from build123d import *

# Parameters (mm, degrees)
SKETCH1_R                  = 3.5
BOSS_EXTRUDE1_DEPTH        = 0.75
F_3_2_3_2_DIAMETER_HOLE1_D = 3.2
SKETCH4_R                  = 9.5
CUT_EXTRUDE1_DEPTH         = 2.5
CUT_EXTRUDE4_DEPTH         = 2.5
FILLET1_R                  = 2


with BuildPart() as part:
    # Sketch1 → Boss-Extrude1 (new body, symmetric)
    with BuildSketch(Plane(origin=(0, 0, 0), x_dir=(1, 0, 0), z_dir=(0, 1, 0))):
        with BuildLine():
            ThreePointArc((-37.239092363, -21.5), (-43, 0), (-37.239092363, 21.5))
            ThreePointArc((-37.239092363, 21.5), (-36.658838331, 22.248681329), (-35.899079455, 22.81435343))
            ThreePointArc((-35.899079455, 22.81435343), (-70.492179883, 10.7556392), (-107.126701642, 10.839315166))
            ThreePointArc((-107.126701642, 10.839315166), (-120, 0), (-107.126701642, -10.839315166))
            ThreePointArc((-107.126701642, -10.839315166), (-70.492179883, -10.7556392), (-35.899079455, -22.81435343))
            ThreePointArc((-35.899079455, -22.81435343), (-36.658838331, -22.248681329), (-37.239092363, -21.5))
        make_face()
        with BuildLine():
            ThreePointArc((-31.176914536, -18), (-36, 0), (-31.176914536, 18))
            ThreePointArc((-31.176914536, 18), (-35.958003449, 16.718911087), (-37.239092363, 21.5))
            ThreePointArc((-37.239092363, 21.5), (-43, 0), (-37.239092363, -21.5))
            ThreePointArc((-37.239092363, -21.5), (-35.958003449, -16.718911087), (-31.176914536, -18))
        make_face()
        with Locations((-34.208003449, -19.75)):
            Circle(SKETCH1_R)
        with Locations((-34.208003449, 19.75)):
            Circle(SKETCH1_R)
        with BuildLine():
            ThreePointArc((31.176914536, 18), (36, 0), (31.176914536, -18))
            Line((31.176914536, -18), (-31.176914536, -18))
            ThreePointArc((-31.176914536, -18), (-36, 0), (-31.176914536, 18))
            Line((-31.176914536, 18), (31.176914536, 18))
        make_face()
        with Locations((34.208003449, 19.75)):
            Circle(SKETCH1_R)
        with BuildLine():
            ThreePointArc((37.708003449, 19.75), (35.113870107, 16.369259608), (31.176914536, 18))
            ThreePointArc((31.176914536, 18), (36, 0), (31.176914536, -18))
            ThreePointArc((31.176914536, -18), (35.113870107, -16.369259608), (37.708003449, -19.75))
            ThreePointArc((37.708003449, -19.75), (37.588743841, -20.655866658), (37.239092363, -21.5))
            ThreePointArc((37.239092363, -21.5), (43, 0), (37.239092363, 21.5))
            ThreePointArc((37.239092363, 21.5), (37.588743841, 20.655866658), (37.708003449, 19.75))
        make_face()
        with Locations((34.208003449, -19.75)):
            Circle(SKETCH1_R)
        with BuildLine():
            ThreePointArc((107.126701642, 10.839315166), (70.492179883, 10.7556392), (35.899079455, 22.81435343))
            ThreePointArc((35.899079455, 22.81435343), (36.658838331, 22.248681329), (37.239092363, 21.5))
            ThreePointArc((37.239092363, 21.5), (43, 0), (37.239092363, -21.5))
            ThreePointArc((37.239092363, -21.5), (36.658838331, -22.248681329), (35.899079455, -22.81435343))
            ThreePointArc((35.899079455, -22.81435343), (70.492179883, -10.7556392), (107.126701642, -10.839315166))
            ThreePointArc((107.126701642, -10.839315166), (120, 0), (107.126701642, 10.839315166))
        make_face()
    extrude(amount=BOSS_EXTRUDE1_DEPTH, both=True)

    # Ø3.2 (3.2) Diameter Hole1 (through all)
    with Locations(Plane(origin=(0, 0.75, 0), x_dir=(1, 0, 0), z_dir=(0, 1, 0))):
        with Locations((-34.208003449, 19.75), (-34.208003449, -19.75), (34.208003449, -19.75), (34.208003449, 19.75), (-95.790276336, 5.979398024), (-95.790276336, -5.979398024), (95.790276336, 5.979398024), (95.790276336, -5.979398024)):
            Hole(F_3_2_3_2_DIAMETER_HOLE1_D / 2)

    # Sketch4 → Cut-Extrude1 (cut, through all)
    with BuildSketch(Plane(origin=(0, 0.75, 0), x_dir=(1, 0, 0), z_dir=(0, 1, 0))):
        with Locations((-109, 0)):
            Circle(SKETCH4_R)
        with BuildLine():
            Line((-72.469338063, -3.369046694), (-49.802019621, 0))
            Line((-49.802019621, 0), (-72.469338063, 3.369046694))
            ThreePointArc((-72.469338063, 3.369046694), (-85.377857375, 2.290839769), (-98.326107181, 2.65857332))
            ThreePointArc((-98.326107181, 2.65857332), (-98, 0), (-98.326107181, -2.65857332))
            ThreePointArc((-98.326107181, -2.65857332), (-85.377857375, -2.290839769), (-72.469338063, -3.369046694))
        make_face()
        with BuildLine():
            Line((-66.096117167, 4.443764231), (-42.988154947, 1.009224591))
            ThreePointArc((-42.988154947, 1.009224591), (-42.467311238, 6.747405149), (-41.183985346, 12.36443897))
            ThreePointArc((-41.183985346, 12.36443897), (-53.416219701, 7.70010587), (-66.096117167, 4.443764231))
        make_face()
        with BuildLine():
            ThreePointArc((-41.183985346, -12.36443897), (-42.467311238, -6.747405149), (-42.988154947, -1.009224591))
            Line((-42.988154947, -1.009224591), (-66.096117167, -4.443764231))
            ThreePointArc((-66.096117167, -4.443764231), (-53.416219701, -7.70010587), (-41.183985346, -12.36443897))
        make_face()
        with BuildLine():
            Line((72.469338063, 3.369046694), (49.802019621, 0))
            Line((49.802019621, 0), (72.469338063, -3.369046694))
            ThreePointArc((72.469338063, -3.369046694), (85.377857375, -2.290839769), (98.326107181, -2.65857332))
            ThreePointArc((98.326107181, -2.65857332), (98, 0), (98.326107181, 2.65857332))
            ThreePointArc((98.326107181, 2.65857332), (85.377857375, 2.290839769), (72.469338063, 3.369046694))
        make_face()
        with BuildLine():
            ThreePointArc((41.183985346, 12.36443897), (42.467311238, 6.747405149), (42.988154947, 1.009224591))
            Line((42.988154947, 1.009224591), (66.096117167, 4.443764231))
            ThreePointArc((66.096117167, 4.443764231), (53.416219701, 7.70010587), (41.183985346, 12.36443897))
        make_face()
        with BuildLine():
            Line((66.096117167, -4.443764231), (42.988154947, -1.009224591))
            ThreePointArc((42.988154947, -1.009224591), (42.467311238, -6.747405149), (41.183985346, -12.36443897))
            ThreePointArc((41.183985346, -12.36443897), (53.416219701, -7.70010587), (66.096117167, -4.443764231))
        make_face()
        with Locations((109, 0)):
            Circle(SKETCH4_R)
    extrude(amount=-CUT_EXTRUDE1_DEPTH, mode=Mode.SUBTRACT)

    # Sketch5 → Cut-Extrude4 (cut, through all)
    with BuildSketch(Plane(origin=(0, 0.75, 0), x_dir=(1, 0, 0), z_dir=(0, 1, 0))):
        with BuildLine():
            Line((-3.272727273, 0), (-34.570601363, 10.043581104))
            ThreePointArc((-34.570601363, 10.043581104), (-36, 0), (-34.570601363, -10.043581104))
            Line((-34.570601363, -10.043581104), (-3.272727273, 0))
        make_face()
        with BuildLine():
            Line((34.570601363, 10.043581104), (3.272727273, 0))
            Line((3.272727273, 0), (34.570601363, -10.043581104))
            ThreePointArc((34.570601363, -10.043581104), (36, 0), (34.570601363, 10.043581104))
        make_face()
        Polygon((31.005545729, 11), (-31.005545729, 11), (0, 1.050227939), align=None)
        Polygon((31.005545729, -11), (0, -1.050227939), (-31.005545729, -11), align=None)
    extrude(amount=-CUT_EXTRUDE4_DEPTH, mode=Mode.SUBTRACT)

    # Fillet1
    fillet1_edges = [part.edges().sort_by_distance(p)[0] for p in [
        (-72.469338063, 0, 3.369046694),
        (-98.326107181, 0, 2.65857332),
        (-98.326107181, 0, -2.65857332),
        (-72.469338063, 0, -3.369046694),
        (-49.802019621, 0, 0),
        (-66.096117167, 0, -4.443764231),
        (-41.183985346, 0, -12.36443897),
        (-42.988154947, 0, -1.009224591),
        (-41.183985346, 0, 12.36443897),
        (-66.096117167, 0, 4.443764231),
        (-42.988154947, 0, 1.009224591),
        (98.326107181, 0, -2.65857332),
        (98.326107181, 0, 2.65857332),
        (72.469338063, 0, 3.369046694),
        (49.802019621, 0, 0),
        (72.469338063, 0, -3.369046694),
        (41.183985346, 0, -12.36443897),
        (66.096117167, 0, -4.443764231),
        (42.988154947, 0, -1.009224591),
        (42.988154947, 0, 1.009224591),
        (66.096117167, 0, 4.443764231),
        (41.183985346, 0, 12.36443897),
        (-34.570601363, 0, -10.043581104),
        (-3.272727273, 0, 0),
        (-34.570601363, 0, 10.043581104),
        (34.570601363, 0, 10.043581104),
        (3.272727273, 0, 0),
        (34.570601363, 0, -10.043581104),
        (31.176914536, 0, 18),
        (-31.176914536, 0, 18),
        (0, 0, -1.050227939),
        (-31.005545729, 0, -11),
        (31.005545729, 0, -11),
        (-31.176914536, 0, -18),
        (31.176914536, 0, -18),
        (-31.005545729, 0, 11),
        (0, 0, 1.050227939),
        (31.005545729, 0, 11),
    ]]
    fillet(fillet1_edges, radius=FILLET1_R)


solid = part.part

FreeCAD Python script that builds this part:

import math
import FreeCAD as App
import Part
import Sketcher

V = App.Vector
Q = App.Units.Quantity


def edges_at(feature, points):
    """Names of the edges that pass closest to the given points."""
    edges = feature.Shape.Edges
    near = lambda p: min(range(len(edges)), key=lambda i: edges[i].distToShape(Part.Vertex(*p))[0])
    return sorted({f"Edge{near(p) + 1}" for p in points})

doc = App.newDocument("Part")
params = doc.addObject("Spreadsheet::Sheet", "Params")
for row, (alias, value) in enumerate([
    ("sketch1_radius", "109 mm"),
    ("sketch1_radius2", "11 mm"),
    ("sketch1_radius3", "3.5 mm"),
    ("pad1_length", "1.5 mm"),
    ("sketch2_diameter", "3.2 mm"),
    ("hole_diameter", "3.2 mm"),
    ("sketch3_diameter", "19 mm"),
    ("sketch3_radius", "116 mm"),
    ("sketch3_radius2", "11 mm"),
    ("sketch3_radius3", "43 mm"),
    ("sketch4_radius", "36 mm"),
    ("fillet_radius", "2 mm"),
], start=1):
    params.set(f"A{row}", alias)
    params.set(f"B{row}", "=" + value)
    params.setAlias(f"B{row}", alias)

body = doc.addObject("PartDesign::Body", "Body")

# Sketch on XZ plane
sketch1 = body.newObject("Sketcher::SketchObject", "Sketch")
sketch1.AttachmentSupport = (doc.getObject("XZ_Plane"), [""])
sketch1.MapMode = "FlatFace"
sketch1.addGeometry(Part.ArcOfCircle(Part.Circle(V(-88.6, -118.2, 0), V(0, 0, 1), 109), math.radians(61), math.radians(100)), False)
sketch1.addGeometry(Part.ArcOfCircle(Part.Circle(V(-109, 0, 0), V(0, 0, 1), 11), math.radians(80), math.radians(280)), False)
sketch1.addGeometry(Part.ArcOfCircle(Part.Circle(V(-88.6, 118.2, 0), V(0, 0, 1), 109), math.radians(-100), math.radians(-61)), False)
sketch1.addGeometry(Part.ArcOfCircle(Part.Circle(V(-34.2, 19.8, 0), V(0, 0, 1), 3.5), math.radians(-30), math.radians(119)), False)
sketch1.addGeometry(Part.LineSegment(V(-31.2, 18, 0), V(31.2, 18, 0)), False)
sketch1.addGeometry(Part.ArcOfCircle(Part.Circle(V(34.2, 19.8, 0), V(0, 0, 1), 3.5), math.radians(61), math.radians(210)), False)
sketch1.addGeometry(Part.ArcOfCircle(Part.Circle(V(88.6, 118.2, 0), V(0, 0, 1), 109), math.radians(-119), math.radians(-80)), False)
sketch1.addGeometry(Part.ArcOfCircle(Part.Circle(V(109, 0, 0), V(0, 0, 1), 11), math.radians(-100), math.radians(100)), False)
sketch1.addGeometry(Part.ArcOfCircle(Part.Circle(V(88.6, -118.2, 0), V(0, 0, 1), 109), math.radians(80), math.radians(119)), False)
sketch1.addGeometry(Part.ArcOfCircle(Part.Circle(V(34.2, -19.8, 0), V(0, 0, 1), 3.5), math.radians(150), math.radians(299)), False)
sketch1.addGeometry(Part.LineSegment(V(31.2, -18, 0), V(-31.2, -18, 0)), False)
sketch1.addGeometry(Part.ArcOfCircle(Part.Circle(V(-34.2, -19.8, 0), V(0, 0, 1), 3.5), math.radians(-119), math.radians(30)), False)
sketch1.addConstraint(Sketcher.Constraint("Tangent", 0, 2, 1, 2))
sketch1.addConstraint(Sketcher.Constraint("Tangent", 1, 1, 2, 1))
sketch1.addConstraint(Sketcher.Constraint("Tangent", 2, 2, 3, 2))
sketch1.addConstraint(Sketcher.Constraint("Coincident", 3, 1, 4, 1))
sketch1.addConstraint(Sketcher.Constraint("Coincident", 4, 2, 5, 2))
sketch1.addConstraint(Sketcher.Constraint("Tangent", 5, 1, 6, 1))
sketch1.addConstraint(Sketcher.Constraint("Tangent", 6, 2, 7, 2))
sketch1.addConstraint(Sketcher.Constraint("Tangent", 7, 1, 8, 1))
sketch1.addConstraint(Sketcher.Constraint("Tangent", 8, 2, 9, 2))
sketch1.addConstraint(Sketcher.Constraint("Coincident", 9, 1, 10, 1))
sketch1.addConstraint(Sketcher.Constraint("Coincident", 10, 2, 11, 2))
sketch1.addConstraint(Sketcher.Constraint("Tangent", 11, 1, 0, 1))
sketch1.addConstraint(Sketcher.Constraint("Horizontal", 4))
sketch1.addConstraint(Sketcher.Constraint("Horizontal", 10))
sketch1.addConstraint(Sketcher.Constraint("Equal", 0, 2))
sketch1.addConstraint(Sketcher.Constraint("Equal", 3, 5))
sketch1.addConstraint(Sketcher.Constraint("Equal", 2, 6))
sketch1.addConstraint(Sketcher.Constraint("Equal", 1, 7))
sketch1.addConstraint(Sketcher.Constraint("Equal", 6, 8))
sketch1.addConstraint(Sketcher.Constraint("Equal", 5, 9))
sketch1.addConstraint(Sketcher.Constraint("Equal", 9, 11))
sketch1.addConstraint(Sketcher.Constraint("Symmetric", 0, 3, 6, 3, -1, 1))
sketch1.addConstraint(Sketcher.Constraint("Symmetric", 2, 3, 8, 3, -1, 1))
sketch1.addConstraint(Sketcher.Constraint("Symmetric", 3, 1, 9, 1, -1, 1))
sketch1.addConstraint(Sketcher.Constraint("Symmetric", 3, 3, 5, 3, -2))
sketch1.addConstraint(Sketcher.Constraint("PointOnObject", 1, 3, -1))
sketch1.addConstraint(Sketcher.Constraint("Horizontal", 9, 3, 11, 3))
sketch1.addConstraint(Sketcher.Constraint("Radius", 0, Q("109 mm")))
sketch1.addConstraint(Sketcher.Constraint("Radius", 1, Q("11 mm")))
sketch1.addConstraint(Sketcher.Constraint("Radius", 3, Q("3.5 mm")))
sketch1.addConstraint(Sketcher.Constraint("DistanceX", 1, 3, -1, 1, Q("109 mm")))
sketch1.addConstraint(Sketcher.Constraint("DistanceY", -1, 1, 3, 1, Q("18 mm")))
sketch1.addConstraint(Sketcher.Constraint("DistanceY", 9, 3, 5, 3, Q("39.5 mm")))
sketch1.addConstraint(Sketcher.Constraint("DistanceX", 4, 1, 4, 2, Q("62.353829 mm")))
sketch1.setExpression("Constraints[27]", "Params.sketch1_radius")
sketch1.setExpression("Constraints[28]", "Params.sketch1_radius2")
sketch1.setExpression("Constraints[29]", "Params.sketch1_radius3")
pad1 = body.newObject("PartDesign::Pad", "Pad")
pad1.Profile = sketch1
pad1.setExpression("Length", "Params.pad1_length")
pad1.Midplane = True

# Sketch on XZ plane
sketch2 = body.newObject("Sketcher::SketchObject", "Sketch001")
sketch2.AttachmentSupport = (doc.getObject("XZ_Plane"), [""])
sketch2.MapMode = "FlatFace"
sketch2.AttachmentOffset = App.Placement(V(0, 0, -0.75), App.Rotation())
sketch2.addGeometry(Part.Circle(V(-34.2, -19.8, 0), V(0, 0, 1), 1.6), False)
sketch2.addGeometry(Part.Circle(V(-34.2, 19.8, 0), V(0, 0, 1), 1.6), False)
sketch2.addGeometry(Part.Circle(V(34.2, 19.8, 0), V(0, 0, 1), 1.6), False)
sketch2.addGeometry(Part.Circle(V(34.2, -19.8, 0), V(0, 0, 1), 1.6), False)
sketch2.addGeometry(Part.Circle(V(-95.8, -6, 0), V(0, 0, 1), 1.6), False)
sketch2.addGeometry(Part.Circle(V(-95.8, 6, 0), V(0, 0, 1), 1.6), False)
sketch2.addGeometry(Part.Circle(V(95.8, -6, 0), V(0, 0, 1), 1.6), False)
sketch2.addGeometry(Part.Circle(V(95.8, 6, 0), V(0, 0, 1), 1.6), False)
sketch2.addConstraint(Sketcher.Constraint("Equal", 0, 1))
sketch2.addConstraint(Sketcher.Constraint("Equal", 1, 2))
sketch2.addConstraint(Sketcher.Constraint("Equal", 2, 3))
sketch2.addConstraint(Sketcher.Constraint("Equal", 3, 4))
sketch2.addConstraint(Sketcher.Constraint("Equal", 4, 5))
sketch2.addConstraint(Sketcher.Constraint("Equal", 5, 6))
sketch2.addConstraint(Sketcher.Constraint("Equal", 6, 7))
sketch2.addConstraint(Sketcher.Constraint("Symmetric", 0, 3, 2, 3, -1, 1))
sketch2.addConstraint(Sketcher.Constraint("Symmetric", 1, 3, 3, 3, -1, 1))
sketch2.addConstraint(Sketcher.Constraint("Symmetric", 5, 3, 6, 3, -1, 1))
sketch2.addConstraint(Sketcher.Constraint("Symmetric", 4, 3, 7, 3, -1, 1))
sketch2.addConstraint(Sketcher.Constraint("Symmetric", 1, 3, 2, 3, -2))
sketch2.addConstraint(Sketcher.Constraint("Symmetric", 4, 3, 6, 3, -2))
sketch2.addConstraint(Sketcher.Constraint("Diameter", 0, Q("3.2 mm")))
sketch2.addConstraint(Sketcher.Constraint("DistanceY", 0, 3, 1, 3, Q("39.5 mm")))
sketch2.addConstraint(Sketcher.Constraint("DistanceY", 4, 3, -1, 1, Q("5.979398 mm")))
sketch2.addConstraint(Sketcher.Constraint("DistanceX", 4, 3, 3, 3, Q("129.99828 mm")))
sketch2.addConstraint(Sketcher.Constraint("DistanceX", 0, 3, -1, 1, Q("34.208003 mm")))
sketch2.setExpression("Constraints[13]", "Params.sketch2_diameter")
doc.recompute()
hole = body.newObject("PartDesign::Hole", "Hole")
hole.Profile = sketch2
hole.ThreadType = "None"
hole.setExpression("Diameter", "Params.hole_diameter")
hole.DepthType = "ThroughAll"
hole.Reversed = True

# Sketch on XZ plane
sketch3 = body.newObject("Sketcher::SketchObject", "Sketch002")
sketch3.AttachmentSupport = (doc.getObject("XZ_Plane"), [""])
sketch3.MapMode = "FlatFace"
sketch3.AttachmentOffset = App.Placement(V(0, 0, -0.75), App.Rotation())
sketch3.addGeometry(Part.Circle(V(-109, 0, 0), V(0, 0, 1), 10), False)
sketch3.addGeometry(Part.LineSegment(V(-72, 3, 0), V(-50, 0, 0)), False)
sketch3.addGeometry(Part.LineSegment(V(-50, 0, 0), V(-72, -3, 0)), False)
sketch3.addGeometry(Part.ArcOfCircle(Part.Circle(V(-89, -118, 0), V(0, 0, 1), 116), math.radians(82.02), math.radians(94.83)), False)
sketch3.addGeometry(Part.ArcOfCircle(Part.Circle(V(-109, 0, 0), V(0, 0, 1), 11), math.radians(-14), math.radians(14)), False)
sketch3.addGeometry(Part.ArcOfCircle(Part.Circle(V(-89, 118, 0), V(0, 0, 1), 116), math.radians(-94.83), math.radians(-82.02)), False)
sketch3.addGeometry(Part.LineSegment(V(-66, -4, 0), V(-43, -1, 0)), False)
sketch3.addGeometry(Part.ArcOfCircle(Part.Circle(V(0, 0, 0), V(0, 0, 1), 43), math.radians(-178.66), math.radians(-163.29)), False)
sketch3.addGeometry(Part.ArcOfCircle(Part.Circle(V(-89, -118, 0), V(0, 0, 1), 116), math.radians(65.89), math.radians(78.83)), False)
sketch3.addGeometry(Part.ArcOfCircle(Part.Circle(V(0, 0, 0), V(0, 0, 1), 43), math.radians(163.29), math.radians(178.66)), False)
sketch3.addGeometry(Part.LineSegment(V(-43, 1, 0), V(-66, 4, 0)), False)
sketch3.addGeometry(Part.ArcOfCircle(Part.Circle(V(-89, 118, 0), V(0, 0, 1), 116), math.radians(-78.83), math.radians(-65.89)), False)
sketch3.addGeometry(Part.LineSegment(V(72, -3, 0), V(50, 0, 0)), False)
sketch3.addGeometry(Part.LineSegment(V(50, 0, 0), V(72, 3, 0)), False)
sketch3.addGeometry(Part.ArcOfCircle(Part.Circle(V(89, 118, 0), V(0, 0, 1), 116), math.radians(-97.98), math.radians(-85.17)), False)
sketch3.addGeometry(Part.ArcOfCircle(Part.Circle(V(109, 0, 0), V(0, 0, 1), 11), math.radians(166), math.radians(194)), False)
sketch3.addGeometry(Part.ArcOfCircle(Part.Circle(V(89, -118, 0), V(0, 0, 1), 116), math.radians(85.17), math.radians(97.98)), False)
sketch3.addGeometry(Part.ArcOfCircle(Part.Circle(V(0, 0, 0), V(0, 0, 1), 43), math.radians(-16.71), math.radians(-1.34)), False)
sketch3.addGeometry(Part.LineSegment(V(43, -1, 0), V(66, -4, 0)), False)
sketch3.addGeometry(Part.ArcOfCircle(Part.Circle(V(89, -118, 0), V(0, 0, 1), 116), math.radians(101.17), math.radians(114.11)), False)
sketch3.addGeometry(Part.LineSegment(V(66, 4, 0), V(43, 1, 0)), False)
sketch3.addGeometry(Part.ArcOfCircle(Part.Circle(V(0, 0, 0), V(0, 0, 1), 43), math.radians(1.34), math.radians(16.71)), False)
sketch3.addGeometry(Part.ArcOfCircle(Part.Circle(V(89, 118, 0), V(0, 0, 1), 116), math.radians(-114.11), math.radians(-101.17)), False)
sketch3.addGeometry(Part.Circle(V(109, 0, 0), V(0, 0, 1), 10), False)
sketch3.addConstraint(Sketcher.Constraint("Coincident", 1, 2, 2, 1))
sketch3.addConstraint(Sketcher.Constraint("Coincident", 2, 2, 3, 1))
sketch3.addConstraint(Sketcher.Constraint("Coincident", 3, 2, 4, 1))
sketch3.addConstraint(Sketcher.Constraint("Coincident", 4, 2, 5, 1))
sketch3.addConstraint(Sketcher.Constraint("Coincident", 5, 2, 1, 1))
sketch3.addConstraint(Sketcher.Constraint("Coincident", 6, 2, 7, 1))
sketch3.addConstraint(Sketcher.Constraint("Coincident", 7, 2, 8, 1))
sketch3.addConstraint(Sketcher.Constraint("Coincident", 8, 2, 6, 1))
sketch3.addConstraint(Sketcher.Constraint("Coincident", 9, 2, 10, 1))
sketch3.addConstraint(Sketcher.Constraint("Coincident", 10, 2, 11, 1))
sketch3.addConstraint(Sketcher.Constraint("Coincident", 11, 2, 9, 1))
sketch3.addConstraint(Sketcher.Constraint("Coincident", 12, 2, 13, 1))
sketch3.addConstraint(Sketcher.Constraint("Coincident", 13, 2, 14, 1))
sketch3.addConstraint(Sketcher.Constraint("Coincident", 14, 2, 15, 1))
sketch3.addConstraint(Sketcher.Constraint("Coincident", 15, 2, 16, 1))
sketch3.addConstraint(Sketcher.Constraint("Coincident", 16, 2, 12, 1))
sketch3.addConstraint(Sketcher.Constraint("Coincident", 17, 2, 18, 1))
sketch3.addConstraint(Sketcher.Constraint("Coincident", 18, 2, 19, 1))
sketch3.addConstraint(Sketcher.Constraint("Coincident", 19, 2, 17, 1))
sketch3.addConstraint(Sketcher.Constraint("Coincident", 20, 2, 21, 1))
sketch3.addConstraint(Sketcher.Constraint("Coincident", 21, 2, 22, 1))
sketch3.addConstraint(Sketcher.Constraint("Coincident", 22, 2, 20, 1))
sketch3.addConstraint(Sketcher.Constraint("Coincident", 7, 3, -1, 1))
sketch3.addConstraint(Sketcher.Constraint("Coincident", 9, 3, -1, 1))
sketch3.addConstraint(Sketcher.Constraint("Coincident", 17, 3, -1, 1))
sketch3.addConstraint(Sketcher.Constraint("Coincident", 21, 3, -1, 1))
sketch3.addConstraint(Sketcher.Constraint("Coincident", 4, 3, 0, 3))
sketch3.addConstraint(Sketcher.Constraint("Coincident", 8, 3, 3, 3))
sketch3.addConstraint(Sketcher.Constraint("Coincident", 11, 3, 5, 3))
sketch3.addConstraint(Sketcher.Constraint("Coincident", 19, 3, 16, 3))
sketch3.addConstraint(Sketcher.Constraint("Coincident", 22, 3, 14, 3))
sketch3.addConstraint(Sketcher.Constraint("Coincident", 23, 3, 15, 3))
sketch3.addConstraint(Sketcher.Constraint("Equal", 3, 5))
sketch3.addConstraint(Sketcher.Constraint("Equal", 5, 8))
sketch3.addConstraint(Sketcher.Constraint("Equal", 7, 9))
sketch3.addConstraint(Sketcher.Constraint("Equal", 8, 11))
sketch3.addConstraint(Sketcher.Constraint("Equal", 11, 14))
sketch3.addConstraint(Sketcher.Constraint("Equal", 4, 15))
sketch3.addConstraint(Sketcher.Constraint("Equal", 14, 16))
sketch3.addConstraint(Sketcher.Constraint("Equal", 9, 17))
sketch3.addConstraint(Sketcher.Constraint("Equal", 16, 19))
sketch3.addConstraint(Sketcher.Constraint("Equal", 17, 21))
sketch3.addConstraint(Sketcher.Constraint("Equal", 19, 22))
sketch3.addConstraint(Sketcher.Constraint("Equal", 0, 23))
sketch3.addConstraint(Sketcher.Constraint("Symmetric", 3, 3, 14, 3, -1, 1))
sketch3.addConstraint(Sketcher.Constraint("Symmetric", 0, 3, 15, 3, -1, 1))
sketch3.addConstraint(Sketcher.Constraint("Symmetric", 5, 3, 16, 3, -1, 1))
sketch3.addConstraint(Sketcher.Constraint("Symmetric", 1, 2, 12, 2, -1, 1))
sketch3.addConstraint(Sketcher.Constraint("Symmetric", 5, 3, 14, 3, -2))
sketch3.addConstraint(Sketcher.Constraint("PointOnObject", 0, 3, -1))
sketch3.addConstraint(Sketcher.Constraint("PointOnObject", 1, 2, -1))
sketch3.addConstraint(Sketcher.Constraint("Parallel", 2, 6))
sketch3.addConstraint(Sketcher.Constraint("Parallel", 1, 10))
sketch3.addConstraint(Sketcher.Constraint("Parallel", 10, 12))
sketch3.addConstraint(Sketcher.Constraint("Parallel", 6, 13))
sketch3.addConstraint(Sketcher.Constraint("Parallel", 12, 18))
sketch3.addConstraint(Sketcher.Constraint("Parallel", 13, 20))
sketch3.addConstraint(Sketcher.Constraint("Horizontal", 5, 2, 13, 2))
sketch3.addConstraint(Sketcher.Constraint("Horizontal", 6, 2, 17, 2))
sketch3.addConstraint(Sketcher.Constraint("Horizontal", 9, 2, 20, 2))
sketch3.addConstraint(Sketcher.Constraint("Vertical", 6, 2, 9, 2))
sketch3.addConstraint(Sketcher.Constraint("Diameter", 0, Q("19 mm")))
sketch3.addConstraint(Sketcher.Constraint("Radius", 3, Q("116 mm")))
sketch3.addConstraint(Sketcher.Constraint("Radius", 4, Q("11 mm")))
sketch3.addConstraint(Sketcher.Constraint("Radius", 7, Q("43 mm")))
sketch3.addConstraint(Sketcher.Constraint("DistanceX", 0, 3, -1, 1, Q("109 mm")))
sketch3.addConstraint(Sketcher.Constraint("Distance", 1, Q("22.916322 mm")))
sketch3.addConstraint(Sketcher.Constraint("DistanceX", 1, 2, -1, 1, Q("49.80202 mm")))
sketch3.addConstraint(Sketcher.Constraint("DistanceX", 2, 2, -1, 1, Q("72.469338 mm")))
sketch3.addConstraint(Sketcher.Constraint("DistanceY", 7, 2, -1, 1, Q("12.364439 mm")))
sketch3.addConstraint(Sketcher.Constraint("DistanceY", 6, 2, 5, 2, Q("4.378271 mm")))
sketch3.setExpression("Constraints[61]", "Params.sketch3_diameter")
sketch3.setExpression("Constraints[62]", "Params.sketch3_radius")
sketch3.setExpression("Constraints[63]", "Params.sketch3_radius2")
sketch3.setExpression("Constraints[64]", "Params.sketch3_radius3")
pocket1 = body.newObject("PartDesign::Pocket", "Pocket")
pocket1.Profile = sketch3
pocket1.Type = "ThroughAll"
pocket1.Reversed = True

# Sketch on XZ plane
sketch4 = body.newObject("Sketcher::SketchObject", "Sketch003")
sketch4.AttachmentSupport = (doc.getObject("XZ_Plane"), [""])
sketch4.MapMode = "FlatFace"
sketch4.AttachmentOffset = App.Placement(V(0, 0, -0.75), App.Rotation())
sketch4.addGeometry(Part.LineSegment(V(-3, 0, 0), V(-35, -10, 0)), False)
sketch4.addGeometry(Part.ArcOfCircle(Part.Circle(V(0, 0, 0), V(0, 0, 1), 36), math.radians(164), math.radians(196)), False)
sketch4.addGeometry(Part.LineSegment(V(-35, 10, 0), V(-3, 0, 0)), False)
sketch4.addGeometry(Part.LineSegment(V(35, -10, 0), V(3, 0, 0)), False)
sketch4.addGeometry(Part.LineSegment(V(3, 0, 0), V(35, 10, 0)), False)
sketch4.addGeometry(Part.ArcOfCircle(Part.Circle(V(0, 0, 0), V(0, 0, 1), 36), math.radians(-16), math.radians(16)), False)
sketch4.addGeometry(Part.LineSegment(V(31, -11, 0), V(-31, -11, 0)), False)
sketch4.addGeometry(Part.LineSegment(V(-31, -11, 0), V(0, -1, 0)), False)
sketch4.addGeometry(Part.LineSegment(V(0, -1, 0), V(31, -11, 0)), False)
sketch4.addGeometry(Part.LineSegment(V(31, 11, 0), V(0, 1, 0)), False)
sketch4.addGeometry(Part.LineSegment(V(0, 1, 0), V(-31, 11, 0)), False)
sketch4.addGeometry(Part.LineSegment(V(-31, 11, 0), V(31, 11, 0)), False)
sketch4.addConstraint(Sketcher.Constraint("Coincident", 0, 2, 1, 2))
sketch4.addConstraint(Sketcher.Constraint("Coincident", 1, 1, 2, 1))
sketch4.addConstraint(Sketcher.Constraint("Coincident", 2, 2, 0, 1))
sketch4.addConstraint(Sketcher.Constraint("Coincident", 3, 2, 4, 1))
sketch4.addConstraint(Sketcher.Constraint("Coincident", 4, 2, 5, 2))
sketch4.addConstraint(Sketcher.Constraint("Coincident", 5, 1, 3, 1))
sketch4.addConstraint(Sketcher.Constraint("Coincident", 6, 2, 7, 1))
sketch4.addConstraint(Sketcher.Constraint("Coincident", 7, 2, 8, 1))
sketch4.addConstraint(Sketcher.Constraint("Coincident", 8, 2, 6, 1))
sketch4.addConstraint(Sketcher.Constraint("Coincident", 9, 2, 10, 1))
sketch4.addConstraint(Sketcher.Constraint("Coincident", 10, 2, 11, 1))
sketch4.addConstraint(Sketcher.Constraint("Coincident", 11, 2, 9, 1))
sketch4.addConstraint(Sketcher.Constraint("Horizontal", 6))
sketch4.addConstraint(Sketcher.Constraint("Horizontal", 11))
sketch4.addConstraint(Sketcher.Constraint("Coincident", 1, 3, -1, 1))
sketch4.addConstraint(Sketcher.Constraint("Coincident", 5, 3, -1, 1))
sketch4.addConstraint(Sketcher.Constraint("Equal", 1, 5))
sketch4.addConstraint(Sketcher.Constraint("Symmetric", 2, 2, 3, 2, -1, 1))
sketch4.addConstraint(Sketcher.Constraint("Symmetric", 7, 2, 9, 2, -1, 1))
sketch4.addConstraint(Sketcher.Constraint("Symmetric", 8, 2, 10, 2, -1, 1))
sketch4.addConstraint(Sketcher.Constraint("PointOnObject", 2, 2, -1))
sketch4.addConstraint(Sketcher.Constraint("PointOnObject", 7, 2, -2))
sketch4.addConstraint(Sketcher.Constraint("Parallel", 2, 3))
sketch4.addConstraint(Sketcher.Constraint("Parallel", 0, 4))
sketch4.addConstraint(Sketcher.Constraint("Parallel", 4, 7))
sketch4.addConstraint(Sketcher.Constraint("Parallel", 3, 8))
sketch4.addConstraint(Sketcher.Constraint("Parallel", 7, 9))
sketch4.addConstraint(Sketcher.Constraint("Horizontal", 1, 1, 4, 2))
sketch4.addConstraint(Sketcher.Constraint("Radius", 1, Q("36 mm")))
sketch4.addConstraint(Sketcher.Constraint("DistanceY", 6, 2, -1, 1, Q("11 mm")))
sketch4.addConstraint(Sketcher.Constraint("Distance", 0, Q("32.869902 mm")))
sketch4.addConstraint(Sketcher.Constraint("DistanceX", 6, 2, 6, 1, Q("62.011091 mm")))
sketch4.addConstraint(Sketcher.Constraint("DistanceX", 0, 2, -1, 1, Q("34.570601 mm")))
sketch4.setExpression("Constraints[28]", "Params.sketch4_radius")
pocket2 = body.newObject("PartDesign::Pocket", "Pocket001")
pocket2.Profile = sketch4
pocket2.Type = "ThroughAll"
pocket2.Reversed = True
doc.recompute()

fillet = body.newObject("PartDesign::Fillet", "Fillet")
fillet.Base = (pocket2, edges_at(pocket2, [
    (-72.469, 0, 3.369),
    (-98.326, 0, 2.659),
    (-98.326, 0, -2.659),
    (-72.469, 0, -3.369),
    (-49.802, 0, 0),
    (-66.096, 0, -4.444),
    (-41.184, 0, -12.364),
    (-42.988, 0, -1.009),
    (-41.184, 0, 12.364),
    (-66.096, 0, 4.444),
    (-42.988, 0, 1.009),
    (98.326, 0, -2.659),
    (98.326, 0, 2.659),
    (72.469, 0, 3.369),
    (49.802, 0, 0),
    (72.469, 0, -3.369),
    (41.184, 0, -12.364),
    (66.096, 0, -4.444),
    (42.988, 0, -1.009),
    (42.988, 0, 1.009),
    (66.096, 0, 4.444),
    (41.184, 0, 12.364),
    (-34.571, 0, -10.044),
    (-3.273, 0, 0),
    (-34.571, 0, 10.044),
    (34.571, 0, 10.044),
    (3.273, 0, 0),
    (34.571, 0, -10.044),
    (31.177, 0, 18),
    (-31.177, 0, 18),
    (0, 0, -1.05),
    (-31.006, 0, -11),
    (31.006, 0, -11),
    (-31.177, 0, -18),
    (31.177, 0, -18),
    (-31.006, 0, 11),
    (0, 0, 1.05),
    (31.006, 0, 11),
]))
fillet.setExpression("Radius", "Params.fillet_radius")

doc.recompute()
